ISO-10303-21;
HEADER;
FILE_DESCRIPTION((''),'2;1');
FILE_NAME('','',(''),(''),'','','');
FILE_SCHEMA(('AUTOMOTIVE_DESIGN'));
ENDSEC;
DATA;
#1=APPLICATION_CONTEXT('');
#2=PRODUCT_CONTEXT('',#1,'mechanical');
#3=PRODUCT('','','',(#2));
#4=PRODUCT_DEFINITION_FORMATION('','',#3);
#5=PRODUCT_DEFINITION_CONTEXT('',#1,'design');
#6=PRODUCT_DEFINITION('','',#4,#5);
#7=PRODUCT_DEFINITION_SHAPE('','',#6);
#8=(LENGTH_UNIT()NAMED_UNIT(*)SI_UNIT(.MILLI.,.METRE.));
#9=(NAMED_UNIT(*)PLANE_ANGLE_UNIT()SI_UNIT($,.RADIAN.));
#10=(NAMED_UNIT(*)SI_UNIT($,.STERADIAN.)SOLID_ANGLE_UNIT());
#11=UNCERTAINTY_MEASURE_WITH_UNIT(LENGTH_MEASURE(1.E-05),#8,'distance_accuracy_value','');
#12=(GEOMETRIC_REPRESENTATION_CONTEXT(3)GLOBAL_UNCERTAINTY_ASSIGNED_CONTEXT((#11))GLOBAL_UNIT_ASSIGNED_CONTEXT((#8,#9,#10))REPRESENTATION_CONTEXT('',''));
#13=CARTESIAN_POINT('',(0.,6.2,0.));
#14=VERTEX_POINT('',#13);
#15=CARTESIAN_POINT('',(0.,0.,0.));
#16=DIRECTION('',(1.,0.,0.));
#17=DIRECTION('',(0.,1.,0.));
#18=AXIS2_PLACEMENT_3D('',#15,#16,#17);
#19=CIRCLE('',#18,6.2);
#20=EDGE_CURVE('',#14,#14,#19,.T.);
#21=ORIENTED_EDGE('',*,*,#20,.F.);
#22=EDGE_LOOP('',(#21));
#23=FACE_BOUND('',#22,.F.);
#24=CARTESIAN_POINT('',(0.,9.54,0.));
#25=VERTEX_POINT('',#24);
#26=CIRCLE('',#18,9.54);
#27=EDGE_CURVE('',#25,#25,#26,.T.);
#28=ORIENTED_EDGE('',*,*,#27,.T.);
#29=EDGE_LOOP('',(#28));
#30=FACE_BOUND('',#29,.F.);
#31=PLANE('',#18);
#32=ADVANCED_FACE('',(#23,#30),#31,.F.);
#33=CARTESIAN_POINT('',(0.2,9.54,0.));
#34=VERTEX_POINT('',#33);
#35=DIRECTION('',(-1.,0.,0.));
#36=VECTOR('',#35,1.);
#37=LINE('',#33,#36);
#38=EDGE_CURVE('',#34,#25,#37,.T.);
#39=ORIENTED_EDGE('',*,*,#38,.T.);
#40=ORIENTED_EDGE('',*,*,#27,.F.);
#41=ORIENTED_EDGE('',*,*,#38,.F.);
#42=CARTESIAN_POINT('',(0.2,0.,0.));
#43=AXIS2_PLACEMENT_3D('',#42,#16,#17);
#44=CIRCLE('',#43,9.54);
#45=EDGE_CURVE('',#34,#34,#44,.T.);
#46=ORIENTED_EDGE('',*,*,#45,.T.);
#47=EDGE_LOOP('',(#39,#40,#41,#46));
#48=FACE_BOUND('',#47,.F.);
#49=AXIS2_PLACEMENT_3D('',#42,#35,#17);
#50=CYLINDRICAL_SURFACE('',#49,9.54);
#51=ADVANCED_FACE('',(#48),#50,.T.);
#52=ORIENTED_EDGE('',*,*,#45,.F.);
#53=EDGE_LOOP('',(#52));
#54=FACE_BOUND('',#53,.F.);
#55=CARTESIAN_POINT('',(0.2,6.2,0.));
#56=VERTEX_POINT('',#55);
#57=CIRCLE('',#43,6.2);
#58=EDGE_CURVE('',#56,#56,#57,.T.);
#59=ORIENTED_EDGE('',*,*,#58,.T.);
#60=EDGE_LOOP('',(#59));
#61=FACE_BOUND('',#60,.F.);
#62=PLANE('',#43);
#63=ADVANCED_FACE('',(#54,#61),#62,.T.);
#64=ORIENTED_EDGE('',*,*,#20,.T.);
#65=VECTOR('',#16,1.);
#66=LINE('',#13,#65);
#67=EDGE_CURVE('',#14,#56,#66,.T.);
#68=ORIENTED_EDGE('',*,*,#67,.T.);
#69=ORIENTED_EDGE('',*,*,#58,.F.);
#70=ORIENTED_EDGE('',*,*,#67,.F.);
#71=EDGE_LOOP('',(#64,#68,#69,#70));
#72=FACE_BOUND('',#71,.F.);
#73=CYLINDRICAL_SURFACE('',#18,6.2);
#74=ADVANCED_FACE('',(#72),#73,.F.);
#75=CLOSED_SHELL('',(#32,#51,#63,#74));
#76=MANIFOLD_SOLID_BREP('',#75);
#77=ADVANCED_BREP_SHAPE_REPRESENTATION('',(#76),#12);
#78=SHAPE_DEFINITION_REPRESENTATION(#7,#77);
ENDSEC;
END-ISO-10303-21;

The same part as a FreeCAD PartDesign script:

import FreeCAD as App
import Part
import Sketcher
Q = App.Units.Quantity

doc = App.newDocument("Part")
body = doc.addObject("PartDesign::Body", "Body")

# Sketch on XY plane
sketch1 = body.newObject("Sketcher::SketchObject", "Sketch")
sketch1.AttachmentSupport = (doc.getObject("XY_Plane"), [""])
sketch1.MapMode = "FlatFace"
sketch1.addGeometry(Part.LineSegment(App.Vector(0.2, 9.54, 0), App.Vector(0, 9.54, 0)), False)
sketch1.addGeometry(Part.LineSegment(App.Vector(0, 9.54, 0), App.Vector(0, 6.2, 0)), False)
sketch1.addGeometry(Part.LineSegment(App.Vector(0, 6.2, 0), App.Vector(0.2, 6.2, 0)), False)
sketch1.addGeometry(Part.LineSegment(App.Vector(0.2, 6.2, 0), App.Vector(0.2, 9.54, 0)), False)
sketch1.addConstraint(Sketcher.Constraint("Coincident", 0, 2, 1, 1))
sketch1.addConstraint(Sketcher.Constraint("Coincident", 1, 2, 2, 1))
sketch1.addConstraint(Sketcher.Constraint("Coincident", 2, 2, 3, 1))
sketch1.addConstraint(Sketcher.Constraint("Coincident", 3, 2, 0, 1))
sketch1.addConstraint(Sketcher.Constraint("Horizontal", 0))
sketch1.addConstraint(Sketcher.Constraint("Vertical", 1))
sketch1.addConstraint(Sketcher.Constraint("Horizontal", 2))
sketch1.addConstraint(Sketcher.Constraint("Vertical", 3))
sketch1.addConstraint(Sketcher.Constraint("PointOnObject", 0, 2, -2))
sketch1.addConstraint(Sketcher.Constraint("DistanceX", 0, 2, 0, 1, Q("0.2 mm")))
sketch1.addConstraint(Sketcher.Constraint("DistanceY", 1, 2, 1, 1, Q("3.34 mm")))
sketch1.addConstraint(Sketcher.Constraint("DistanceY", -1, 1, 1, 2, Q("6.2 mm")))
revolution = body.newObject("PartDesign::Revolution", "Revolution")
revolution.Profile = sketch1
revolution.ReferenceAxis = (sketch1, ["H_Axis"])
revolution.Angle = 360

doc.recompute()
